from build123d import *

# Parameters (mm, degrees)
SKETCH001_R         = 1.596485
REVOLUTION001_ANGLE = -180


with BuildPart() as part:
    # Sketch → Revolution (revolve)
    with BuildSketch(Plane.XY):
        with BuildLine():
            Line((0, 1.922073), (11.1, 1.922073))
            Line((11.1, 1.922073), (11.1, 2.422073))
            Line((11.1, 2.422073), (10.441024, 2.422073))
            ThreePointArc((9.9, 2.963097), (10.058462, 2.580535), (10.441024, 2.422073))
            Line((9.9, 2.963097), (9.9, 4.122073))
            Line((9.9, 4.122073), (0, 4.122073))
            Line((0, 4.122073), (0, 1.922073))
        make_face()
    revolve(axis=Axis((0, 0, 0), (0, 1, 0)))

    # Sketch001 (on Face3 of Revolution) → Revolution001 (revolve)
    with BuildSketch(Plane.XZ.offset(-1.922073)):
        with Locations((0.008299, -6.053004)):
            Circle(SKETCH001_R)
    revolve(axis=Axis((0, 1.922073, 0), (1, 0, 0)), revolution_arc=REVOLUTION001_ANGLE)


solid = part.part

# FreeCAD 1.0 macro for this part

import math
import FreeCAD as App
import Part
import Sketcher

V = App.Vector

doc = App.newDocument("Part")
body = doc.addObject("PartDesign::Body", "Body")

# Sketch on XY plane
sketch1 = doc.addObject("Sketcher::SketchObject", "Sketch")
body.addObject(sketch1)
sketch1.AttachmentSupport = (doc.XY_Plane, [""])
sketch1.MapMode = "FlatFace"
sketch1.addGeometry(Part.LineSegment(V(0, 1.9, 0), V(11.1, 1.9, 0)), False)
sketch1.addGeometry(Part.LineSegment(V(11.1, 1.9, 0), V(11.1, 2.4, 0)), False)
sketch1.addGeometry(Part.LineSegment(V(11.1, 2.4, 0), V(10.4, 2.4, 0)), False)
sketch1.addGeometry(Part.ArcOfCircle(Part.Circle(V(10.4, 3, 0), V(0, 0, 1), 0.5), math.radians(180), math.radians(270)), False)
sketch1.addGeometry(Part.LineSegment(V(9.9, 3, 0), V(9.9, 4.1, 0)), False)
sketch1.addGeometry(Part.LineSegment(V(9.9, 4.1, 0), V(0, 4.1, 0)), False)
sketch1.addGeometry(Part.LineSegment(V(0, 4.1, 0), V(0, 1.9, 0)), False)
sketch1.addConstraint(Sketcher.Constraint("Coincident", 0, 2, 1, 1))
sketch1.addConstraint(Sketcher.Constraint("Coincident", 1, 2, 2, 1))
sketch1.addConstraint(Sketcher.Constraint("Tangent", 2, 2, 3, 2))
sketch1.addConstraint(Sketcher.Constraint("Tangent", 3, 1, 4, 1))
sketch1.addConstraint(Sketcher.Constraint("Coincident", 4, 2, 5, 1))
sketch1.addConstraint(Sketcher.Constraint("Coincident", 5, 2, 6, 1))
sketch1.addConstraint(Sketcher.Constraint("Coincident", 6, 2, 0, 1))
sketch1.addConstraint(Sketcher.Constraint("Horizontal", 0))
sketch1.addConstraint(Sketcher.Constraint("Vertical", 1))
sketch1.addConstraint(Sketcher.Constraint("Horizontal", 2))
sketch1.addConstraint(Sketcher.Constraint("Vertical", 4))
sketch1.addConstraint(Sketcher.Constraint("Horizontal", 5))
sketch1.addConstraint(Sketcher.Constraint("Vertical", 6))
sketch1.addConstraint(Sketcher.Constraint("PointOnObject", 5, 2, -2))
sketch1.addConstraint(Sketcher.Constraint("DistanceX", 0, 1, 0, 2, 11.1))
sketch1.addConstraint(Sketcher.Constraint("DistanceX", 5, 2, 5, 1, 9.9))
sketch1.addConstraint(Sketcher.Constraint("DistanceY", 1, 1, 1, 2, 0.5))
sketch1.addConstraint(Sketcher.Constraint("DistanceY", 6, 2, 6, 1, 2.2))
sketch1.addConstraint(Sketcher.Constraint("Radius", 3, 0.541023))
sketch1.addConstraint(Sketcher.Constraint("DistanceY", -1, 1, 3, 3, 2.963096))
revolution = doc.addObject("PartDesign::Revolution", "Revolution")
body.addObject(revolution)
revolution.Profile = sketch1
revolution.ReferenceAxis = (sketch1, ["V_Axis"])
revolution.Angle = 360

# Sketch on XZ plane
sketch2 = doc.addObject("Sketcher::SketchObject", "Sketch001")
body.addObject(sketch2)
sketch2.AttachmentSupport = (doc.XZ_Plane, [""])
sketch2.MapMode = "FlatFace"
sketch2.AttachmentOffset = App.Placement(V(0, 0, -1.922073), App.Rotation())
sketch2.addGeometry(Part.Circle(V(0, -6.1, 0), V(0, 0, 1), 1.6), False)
sketch2.addConstraint(Sketcher.Constraint("Diameter", 0, 3.19297))
sketch2.addConstraint(Sketcher.Constraint("DistanceX", -1, 1, 0, 3, 0.008299))
sketch2.addConstraint(Sketcher.Constraint("DistanceY", 0, 3, -1, 1, 6.053004))
revolution2 = doc.addObject("PartDesign::Revolution", "Revolution001")
body.addObject(revolution2)
revolution2.Profile = sketch2
revolution2.ReferenceAxis = (sketch2, ["H_Axis"])
revolution2.Angle = 180
revolution2.Reversed = True

doc.recompute()
